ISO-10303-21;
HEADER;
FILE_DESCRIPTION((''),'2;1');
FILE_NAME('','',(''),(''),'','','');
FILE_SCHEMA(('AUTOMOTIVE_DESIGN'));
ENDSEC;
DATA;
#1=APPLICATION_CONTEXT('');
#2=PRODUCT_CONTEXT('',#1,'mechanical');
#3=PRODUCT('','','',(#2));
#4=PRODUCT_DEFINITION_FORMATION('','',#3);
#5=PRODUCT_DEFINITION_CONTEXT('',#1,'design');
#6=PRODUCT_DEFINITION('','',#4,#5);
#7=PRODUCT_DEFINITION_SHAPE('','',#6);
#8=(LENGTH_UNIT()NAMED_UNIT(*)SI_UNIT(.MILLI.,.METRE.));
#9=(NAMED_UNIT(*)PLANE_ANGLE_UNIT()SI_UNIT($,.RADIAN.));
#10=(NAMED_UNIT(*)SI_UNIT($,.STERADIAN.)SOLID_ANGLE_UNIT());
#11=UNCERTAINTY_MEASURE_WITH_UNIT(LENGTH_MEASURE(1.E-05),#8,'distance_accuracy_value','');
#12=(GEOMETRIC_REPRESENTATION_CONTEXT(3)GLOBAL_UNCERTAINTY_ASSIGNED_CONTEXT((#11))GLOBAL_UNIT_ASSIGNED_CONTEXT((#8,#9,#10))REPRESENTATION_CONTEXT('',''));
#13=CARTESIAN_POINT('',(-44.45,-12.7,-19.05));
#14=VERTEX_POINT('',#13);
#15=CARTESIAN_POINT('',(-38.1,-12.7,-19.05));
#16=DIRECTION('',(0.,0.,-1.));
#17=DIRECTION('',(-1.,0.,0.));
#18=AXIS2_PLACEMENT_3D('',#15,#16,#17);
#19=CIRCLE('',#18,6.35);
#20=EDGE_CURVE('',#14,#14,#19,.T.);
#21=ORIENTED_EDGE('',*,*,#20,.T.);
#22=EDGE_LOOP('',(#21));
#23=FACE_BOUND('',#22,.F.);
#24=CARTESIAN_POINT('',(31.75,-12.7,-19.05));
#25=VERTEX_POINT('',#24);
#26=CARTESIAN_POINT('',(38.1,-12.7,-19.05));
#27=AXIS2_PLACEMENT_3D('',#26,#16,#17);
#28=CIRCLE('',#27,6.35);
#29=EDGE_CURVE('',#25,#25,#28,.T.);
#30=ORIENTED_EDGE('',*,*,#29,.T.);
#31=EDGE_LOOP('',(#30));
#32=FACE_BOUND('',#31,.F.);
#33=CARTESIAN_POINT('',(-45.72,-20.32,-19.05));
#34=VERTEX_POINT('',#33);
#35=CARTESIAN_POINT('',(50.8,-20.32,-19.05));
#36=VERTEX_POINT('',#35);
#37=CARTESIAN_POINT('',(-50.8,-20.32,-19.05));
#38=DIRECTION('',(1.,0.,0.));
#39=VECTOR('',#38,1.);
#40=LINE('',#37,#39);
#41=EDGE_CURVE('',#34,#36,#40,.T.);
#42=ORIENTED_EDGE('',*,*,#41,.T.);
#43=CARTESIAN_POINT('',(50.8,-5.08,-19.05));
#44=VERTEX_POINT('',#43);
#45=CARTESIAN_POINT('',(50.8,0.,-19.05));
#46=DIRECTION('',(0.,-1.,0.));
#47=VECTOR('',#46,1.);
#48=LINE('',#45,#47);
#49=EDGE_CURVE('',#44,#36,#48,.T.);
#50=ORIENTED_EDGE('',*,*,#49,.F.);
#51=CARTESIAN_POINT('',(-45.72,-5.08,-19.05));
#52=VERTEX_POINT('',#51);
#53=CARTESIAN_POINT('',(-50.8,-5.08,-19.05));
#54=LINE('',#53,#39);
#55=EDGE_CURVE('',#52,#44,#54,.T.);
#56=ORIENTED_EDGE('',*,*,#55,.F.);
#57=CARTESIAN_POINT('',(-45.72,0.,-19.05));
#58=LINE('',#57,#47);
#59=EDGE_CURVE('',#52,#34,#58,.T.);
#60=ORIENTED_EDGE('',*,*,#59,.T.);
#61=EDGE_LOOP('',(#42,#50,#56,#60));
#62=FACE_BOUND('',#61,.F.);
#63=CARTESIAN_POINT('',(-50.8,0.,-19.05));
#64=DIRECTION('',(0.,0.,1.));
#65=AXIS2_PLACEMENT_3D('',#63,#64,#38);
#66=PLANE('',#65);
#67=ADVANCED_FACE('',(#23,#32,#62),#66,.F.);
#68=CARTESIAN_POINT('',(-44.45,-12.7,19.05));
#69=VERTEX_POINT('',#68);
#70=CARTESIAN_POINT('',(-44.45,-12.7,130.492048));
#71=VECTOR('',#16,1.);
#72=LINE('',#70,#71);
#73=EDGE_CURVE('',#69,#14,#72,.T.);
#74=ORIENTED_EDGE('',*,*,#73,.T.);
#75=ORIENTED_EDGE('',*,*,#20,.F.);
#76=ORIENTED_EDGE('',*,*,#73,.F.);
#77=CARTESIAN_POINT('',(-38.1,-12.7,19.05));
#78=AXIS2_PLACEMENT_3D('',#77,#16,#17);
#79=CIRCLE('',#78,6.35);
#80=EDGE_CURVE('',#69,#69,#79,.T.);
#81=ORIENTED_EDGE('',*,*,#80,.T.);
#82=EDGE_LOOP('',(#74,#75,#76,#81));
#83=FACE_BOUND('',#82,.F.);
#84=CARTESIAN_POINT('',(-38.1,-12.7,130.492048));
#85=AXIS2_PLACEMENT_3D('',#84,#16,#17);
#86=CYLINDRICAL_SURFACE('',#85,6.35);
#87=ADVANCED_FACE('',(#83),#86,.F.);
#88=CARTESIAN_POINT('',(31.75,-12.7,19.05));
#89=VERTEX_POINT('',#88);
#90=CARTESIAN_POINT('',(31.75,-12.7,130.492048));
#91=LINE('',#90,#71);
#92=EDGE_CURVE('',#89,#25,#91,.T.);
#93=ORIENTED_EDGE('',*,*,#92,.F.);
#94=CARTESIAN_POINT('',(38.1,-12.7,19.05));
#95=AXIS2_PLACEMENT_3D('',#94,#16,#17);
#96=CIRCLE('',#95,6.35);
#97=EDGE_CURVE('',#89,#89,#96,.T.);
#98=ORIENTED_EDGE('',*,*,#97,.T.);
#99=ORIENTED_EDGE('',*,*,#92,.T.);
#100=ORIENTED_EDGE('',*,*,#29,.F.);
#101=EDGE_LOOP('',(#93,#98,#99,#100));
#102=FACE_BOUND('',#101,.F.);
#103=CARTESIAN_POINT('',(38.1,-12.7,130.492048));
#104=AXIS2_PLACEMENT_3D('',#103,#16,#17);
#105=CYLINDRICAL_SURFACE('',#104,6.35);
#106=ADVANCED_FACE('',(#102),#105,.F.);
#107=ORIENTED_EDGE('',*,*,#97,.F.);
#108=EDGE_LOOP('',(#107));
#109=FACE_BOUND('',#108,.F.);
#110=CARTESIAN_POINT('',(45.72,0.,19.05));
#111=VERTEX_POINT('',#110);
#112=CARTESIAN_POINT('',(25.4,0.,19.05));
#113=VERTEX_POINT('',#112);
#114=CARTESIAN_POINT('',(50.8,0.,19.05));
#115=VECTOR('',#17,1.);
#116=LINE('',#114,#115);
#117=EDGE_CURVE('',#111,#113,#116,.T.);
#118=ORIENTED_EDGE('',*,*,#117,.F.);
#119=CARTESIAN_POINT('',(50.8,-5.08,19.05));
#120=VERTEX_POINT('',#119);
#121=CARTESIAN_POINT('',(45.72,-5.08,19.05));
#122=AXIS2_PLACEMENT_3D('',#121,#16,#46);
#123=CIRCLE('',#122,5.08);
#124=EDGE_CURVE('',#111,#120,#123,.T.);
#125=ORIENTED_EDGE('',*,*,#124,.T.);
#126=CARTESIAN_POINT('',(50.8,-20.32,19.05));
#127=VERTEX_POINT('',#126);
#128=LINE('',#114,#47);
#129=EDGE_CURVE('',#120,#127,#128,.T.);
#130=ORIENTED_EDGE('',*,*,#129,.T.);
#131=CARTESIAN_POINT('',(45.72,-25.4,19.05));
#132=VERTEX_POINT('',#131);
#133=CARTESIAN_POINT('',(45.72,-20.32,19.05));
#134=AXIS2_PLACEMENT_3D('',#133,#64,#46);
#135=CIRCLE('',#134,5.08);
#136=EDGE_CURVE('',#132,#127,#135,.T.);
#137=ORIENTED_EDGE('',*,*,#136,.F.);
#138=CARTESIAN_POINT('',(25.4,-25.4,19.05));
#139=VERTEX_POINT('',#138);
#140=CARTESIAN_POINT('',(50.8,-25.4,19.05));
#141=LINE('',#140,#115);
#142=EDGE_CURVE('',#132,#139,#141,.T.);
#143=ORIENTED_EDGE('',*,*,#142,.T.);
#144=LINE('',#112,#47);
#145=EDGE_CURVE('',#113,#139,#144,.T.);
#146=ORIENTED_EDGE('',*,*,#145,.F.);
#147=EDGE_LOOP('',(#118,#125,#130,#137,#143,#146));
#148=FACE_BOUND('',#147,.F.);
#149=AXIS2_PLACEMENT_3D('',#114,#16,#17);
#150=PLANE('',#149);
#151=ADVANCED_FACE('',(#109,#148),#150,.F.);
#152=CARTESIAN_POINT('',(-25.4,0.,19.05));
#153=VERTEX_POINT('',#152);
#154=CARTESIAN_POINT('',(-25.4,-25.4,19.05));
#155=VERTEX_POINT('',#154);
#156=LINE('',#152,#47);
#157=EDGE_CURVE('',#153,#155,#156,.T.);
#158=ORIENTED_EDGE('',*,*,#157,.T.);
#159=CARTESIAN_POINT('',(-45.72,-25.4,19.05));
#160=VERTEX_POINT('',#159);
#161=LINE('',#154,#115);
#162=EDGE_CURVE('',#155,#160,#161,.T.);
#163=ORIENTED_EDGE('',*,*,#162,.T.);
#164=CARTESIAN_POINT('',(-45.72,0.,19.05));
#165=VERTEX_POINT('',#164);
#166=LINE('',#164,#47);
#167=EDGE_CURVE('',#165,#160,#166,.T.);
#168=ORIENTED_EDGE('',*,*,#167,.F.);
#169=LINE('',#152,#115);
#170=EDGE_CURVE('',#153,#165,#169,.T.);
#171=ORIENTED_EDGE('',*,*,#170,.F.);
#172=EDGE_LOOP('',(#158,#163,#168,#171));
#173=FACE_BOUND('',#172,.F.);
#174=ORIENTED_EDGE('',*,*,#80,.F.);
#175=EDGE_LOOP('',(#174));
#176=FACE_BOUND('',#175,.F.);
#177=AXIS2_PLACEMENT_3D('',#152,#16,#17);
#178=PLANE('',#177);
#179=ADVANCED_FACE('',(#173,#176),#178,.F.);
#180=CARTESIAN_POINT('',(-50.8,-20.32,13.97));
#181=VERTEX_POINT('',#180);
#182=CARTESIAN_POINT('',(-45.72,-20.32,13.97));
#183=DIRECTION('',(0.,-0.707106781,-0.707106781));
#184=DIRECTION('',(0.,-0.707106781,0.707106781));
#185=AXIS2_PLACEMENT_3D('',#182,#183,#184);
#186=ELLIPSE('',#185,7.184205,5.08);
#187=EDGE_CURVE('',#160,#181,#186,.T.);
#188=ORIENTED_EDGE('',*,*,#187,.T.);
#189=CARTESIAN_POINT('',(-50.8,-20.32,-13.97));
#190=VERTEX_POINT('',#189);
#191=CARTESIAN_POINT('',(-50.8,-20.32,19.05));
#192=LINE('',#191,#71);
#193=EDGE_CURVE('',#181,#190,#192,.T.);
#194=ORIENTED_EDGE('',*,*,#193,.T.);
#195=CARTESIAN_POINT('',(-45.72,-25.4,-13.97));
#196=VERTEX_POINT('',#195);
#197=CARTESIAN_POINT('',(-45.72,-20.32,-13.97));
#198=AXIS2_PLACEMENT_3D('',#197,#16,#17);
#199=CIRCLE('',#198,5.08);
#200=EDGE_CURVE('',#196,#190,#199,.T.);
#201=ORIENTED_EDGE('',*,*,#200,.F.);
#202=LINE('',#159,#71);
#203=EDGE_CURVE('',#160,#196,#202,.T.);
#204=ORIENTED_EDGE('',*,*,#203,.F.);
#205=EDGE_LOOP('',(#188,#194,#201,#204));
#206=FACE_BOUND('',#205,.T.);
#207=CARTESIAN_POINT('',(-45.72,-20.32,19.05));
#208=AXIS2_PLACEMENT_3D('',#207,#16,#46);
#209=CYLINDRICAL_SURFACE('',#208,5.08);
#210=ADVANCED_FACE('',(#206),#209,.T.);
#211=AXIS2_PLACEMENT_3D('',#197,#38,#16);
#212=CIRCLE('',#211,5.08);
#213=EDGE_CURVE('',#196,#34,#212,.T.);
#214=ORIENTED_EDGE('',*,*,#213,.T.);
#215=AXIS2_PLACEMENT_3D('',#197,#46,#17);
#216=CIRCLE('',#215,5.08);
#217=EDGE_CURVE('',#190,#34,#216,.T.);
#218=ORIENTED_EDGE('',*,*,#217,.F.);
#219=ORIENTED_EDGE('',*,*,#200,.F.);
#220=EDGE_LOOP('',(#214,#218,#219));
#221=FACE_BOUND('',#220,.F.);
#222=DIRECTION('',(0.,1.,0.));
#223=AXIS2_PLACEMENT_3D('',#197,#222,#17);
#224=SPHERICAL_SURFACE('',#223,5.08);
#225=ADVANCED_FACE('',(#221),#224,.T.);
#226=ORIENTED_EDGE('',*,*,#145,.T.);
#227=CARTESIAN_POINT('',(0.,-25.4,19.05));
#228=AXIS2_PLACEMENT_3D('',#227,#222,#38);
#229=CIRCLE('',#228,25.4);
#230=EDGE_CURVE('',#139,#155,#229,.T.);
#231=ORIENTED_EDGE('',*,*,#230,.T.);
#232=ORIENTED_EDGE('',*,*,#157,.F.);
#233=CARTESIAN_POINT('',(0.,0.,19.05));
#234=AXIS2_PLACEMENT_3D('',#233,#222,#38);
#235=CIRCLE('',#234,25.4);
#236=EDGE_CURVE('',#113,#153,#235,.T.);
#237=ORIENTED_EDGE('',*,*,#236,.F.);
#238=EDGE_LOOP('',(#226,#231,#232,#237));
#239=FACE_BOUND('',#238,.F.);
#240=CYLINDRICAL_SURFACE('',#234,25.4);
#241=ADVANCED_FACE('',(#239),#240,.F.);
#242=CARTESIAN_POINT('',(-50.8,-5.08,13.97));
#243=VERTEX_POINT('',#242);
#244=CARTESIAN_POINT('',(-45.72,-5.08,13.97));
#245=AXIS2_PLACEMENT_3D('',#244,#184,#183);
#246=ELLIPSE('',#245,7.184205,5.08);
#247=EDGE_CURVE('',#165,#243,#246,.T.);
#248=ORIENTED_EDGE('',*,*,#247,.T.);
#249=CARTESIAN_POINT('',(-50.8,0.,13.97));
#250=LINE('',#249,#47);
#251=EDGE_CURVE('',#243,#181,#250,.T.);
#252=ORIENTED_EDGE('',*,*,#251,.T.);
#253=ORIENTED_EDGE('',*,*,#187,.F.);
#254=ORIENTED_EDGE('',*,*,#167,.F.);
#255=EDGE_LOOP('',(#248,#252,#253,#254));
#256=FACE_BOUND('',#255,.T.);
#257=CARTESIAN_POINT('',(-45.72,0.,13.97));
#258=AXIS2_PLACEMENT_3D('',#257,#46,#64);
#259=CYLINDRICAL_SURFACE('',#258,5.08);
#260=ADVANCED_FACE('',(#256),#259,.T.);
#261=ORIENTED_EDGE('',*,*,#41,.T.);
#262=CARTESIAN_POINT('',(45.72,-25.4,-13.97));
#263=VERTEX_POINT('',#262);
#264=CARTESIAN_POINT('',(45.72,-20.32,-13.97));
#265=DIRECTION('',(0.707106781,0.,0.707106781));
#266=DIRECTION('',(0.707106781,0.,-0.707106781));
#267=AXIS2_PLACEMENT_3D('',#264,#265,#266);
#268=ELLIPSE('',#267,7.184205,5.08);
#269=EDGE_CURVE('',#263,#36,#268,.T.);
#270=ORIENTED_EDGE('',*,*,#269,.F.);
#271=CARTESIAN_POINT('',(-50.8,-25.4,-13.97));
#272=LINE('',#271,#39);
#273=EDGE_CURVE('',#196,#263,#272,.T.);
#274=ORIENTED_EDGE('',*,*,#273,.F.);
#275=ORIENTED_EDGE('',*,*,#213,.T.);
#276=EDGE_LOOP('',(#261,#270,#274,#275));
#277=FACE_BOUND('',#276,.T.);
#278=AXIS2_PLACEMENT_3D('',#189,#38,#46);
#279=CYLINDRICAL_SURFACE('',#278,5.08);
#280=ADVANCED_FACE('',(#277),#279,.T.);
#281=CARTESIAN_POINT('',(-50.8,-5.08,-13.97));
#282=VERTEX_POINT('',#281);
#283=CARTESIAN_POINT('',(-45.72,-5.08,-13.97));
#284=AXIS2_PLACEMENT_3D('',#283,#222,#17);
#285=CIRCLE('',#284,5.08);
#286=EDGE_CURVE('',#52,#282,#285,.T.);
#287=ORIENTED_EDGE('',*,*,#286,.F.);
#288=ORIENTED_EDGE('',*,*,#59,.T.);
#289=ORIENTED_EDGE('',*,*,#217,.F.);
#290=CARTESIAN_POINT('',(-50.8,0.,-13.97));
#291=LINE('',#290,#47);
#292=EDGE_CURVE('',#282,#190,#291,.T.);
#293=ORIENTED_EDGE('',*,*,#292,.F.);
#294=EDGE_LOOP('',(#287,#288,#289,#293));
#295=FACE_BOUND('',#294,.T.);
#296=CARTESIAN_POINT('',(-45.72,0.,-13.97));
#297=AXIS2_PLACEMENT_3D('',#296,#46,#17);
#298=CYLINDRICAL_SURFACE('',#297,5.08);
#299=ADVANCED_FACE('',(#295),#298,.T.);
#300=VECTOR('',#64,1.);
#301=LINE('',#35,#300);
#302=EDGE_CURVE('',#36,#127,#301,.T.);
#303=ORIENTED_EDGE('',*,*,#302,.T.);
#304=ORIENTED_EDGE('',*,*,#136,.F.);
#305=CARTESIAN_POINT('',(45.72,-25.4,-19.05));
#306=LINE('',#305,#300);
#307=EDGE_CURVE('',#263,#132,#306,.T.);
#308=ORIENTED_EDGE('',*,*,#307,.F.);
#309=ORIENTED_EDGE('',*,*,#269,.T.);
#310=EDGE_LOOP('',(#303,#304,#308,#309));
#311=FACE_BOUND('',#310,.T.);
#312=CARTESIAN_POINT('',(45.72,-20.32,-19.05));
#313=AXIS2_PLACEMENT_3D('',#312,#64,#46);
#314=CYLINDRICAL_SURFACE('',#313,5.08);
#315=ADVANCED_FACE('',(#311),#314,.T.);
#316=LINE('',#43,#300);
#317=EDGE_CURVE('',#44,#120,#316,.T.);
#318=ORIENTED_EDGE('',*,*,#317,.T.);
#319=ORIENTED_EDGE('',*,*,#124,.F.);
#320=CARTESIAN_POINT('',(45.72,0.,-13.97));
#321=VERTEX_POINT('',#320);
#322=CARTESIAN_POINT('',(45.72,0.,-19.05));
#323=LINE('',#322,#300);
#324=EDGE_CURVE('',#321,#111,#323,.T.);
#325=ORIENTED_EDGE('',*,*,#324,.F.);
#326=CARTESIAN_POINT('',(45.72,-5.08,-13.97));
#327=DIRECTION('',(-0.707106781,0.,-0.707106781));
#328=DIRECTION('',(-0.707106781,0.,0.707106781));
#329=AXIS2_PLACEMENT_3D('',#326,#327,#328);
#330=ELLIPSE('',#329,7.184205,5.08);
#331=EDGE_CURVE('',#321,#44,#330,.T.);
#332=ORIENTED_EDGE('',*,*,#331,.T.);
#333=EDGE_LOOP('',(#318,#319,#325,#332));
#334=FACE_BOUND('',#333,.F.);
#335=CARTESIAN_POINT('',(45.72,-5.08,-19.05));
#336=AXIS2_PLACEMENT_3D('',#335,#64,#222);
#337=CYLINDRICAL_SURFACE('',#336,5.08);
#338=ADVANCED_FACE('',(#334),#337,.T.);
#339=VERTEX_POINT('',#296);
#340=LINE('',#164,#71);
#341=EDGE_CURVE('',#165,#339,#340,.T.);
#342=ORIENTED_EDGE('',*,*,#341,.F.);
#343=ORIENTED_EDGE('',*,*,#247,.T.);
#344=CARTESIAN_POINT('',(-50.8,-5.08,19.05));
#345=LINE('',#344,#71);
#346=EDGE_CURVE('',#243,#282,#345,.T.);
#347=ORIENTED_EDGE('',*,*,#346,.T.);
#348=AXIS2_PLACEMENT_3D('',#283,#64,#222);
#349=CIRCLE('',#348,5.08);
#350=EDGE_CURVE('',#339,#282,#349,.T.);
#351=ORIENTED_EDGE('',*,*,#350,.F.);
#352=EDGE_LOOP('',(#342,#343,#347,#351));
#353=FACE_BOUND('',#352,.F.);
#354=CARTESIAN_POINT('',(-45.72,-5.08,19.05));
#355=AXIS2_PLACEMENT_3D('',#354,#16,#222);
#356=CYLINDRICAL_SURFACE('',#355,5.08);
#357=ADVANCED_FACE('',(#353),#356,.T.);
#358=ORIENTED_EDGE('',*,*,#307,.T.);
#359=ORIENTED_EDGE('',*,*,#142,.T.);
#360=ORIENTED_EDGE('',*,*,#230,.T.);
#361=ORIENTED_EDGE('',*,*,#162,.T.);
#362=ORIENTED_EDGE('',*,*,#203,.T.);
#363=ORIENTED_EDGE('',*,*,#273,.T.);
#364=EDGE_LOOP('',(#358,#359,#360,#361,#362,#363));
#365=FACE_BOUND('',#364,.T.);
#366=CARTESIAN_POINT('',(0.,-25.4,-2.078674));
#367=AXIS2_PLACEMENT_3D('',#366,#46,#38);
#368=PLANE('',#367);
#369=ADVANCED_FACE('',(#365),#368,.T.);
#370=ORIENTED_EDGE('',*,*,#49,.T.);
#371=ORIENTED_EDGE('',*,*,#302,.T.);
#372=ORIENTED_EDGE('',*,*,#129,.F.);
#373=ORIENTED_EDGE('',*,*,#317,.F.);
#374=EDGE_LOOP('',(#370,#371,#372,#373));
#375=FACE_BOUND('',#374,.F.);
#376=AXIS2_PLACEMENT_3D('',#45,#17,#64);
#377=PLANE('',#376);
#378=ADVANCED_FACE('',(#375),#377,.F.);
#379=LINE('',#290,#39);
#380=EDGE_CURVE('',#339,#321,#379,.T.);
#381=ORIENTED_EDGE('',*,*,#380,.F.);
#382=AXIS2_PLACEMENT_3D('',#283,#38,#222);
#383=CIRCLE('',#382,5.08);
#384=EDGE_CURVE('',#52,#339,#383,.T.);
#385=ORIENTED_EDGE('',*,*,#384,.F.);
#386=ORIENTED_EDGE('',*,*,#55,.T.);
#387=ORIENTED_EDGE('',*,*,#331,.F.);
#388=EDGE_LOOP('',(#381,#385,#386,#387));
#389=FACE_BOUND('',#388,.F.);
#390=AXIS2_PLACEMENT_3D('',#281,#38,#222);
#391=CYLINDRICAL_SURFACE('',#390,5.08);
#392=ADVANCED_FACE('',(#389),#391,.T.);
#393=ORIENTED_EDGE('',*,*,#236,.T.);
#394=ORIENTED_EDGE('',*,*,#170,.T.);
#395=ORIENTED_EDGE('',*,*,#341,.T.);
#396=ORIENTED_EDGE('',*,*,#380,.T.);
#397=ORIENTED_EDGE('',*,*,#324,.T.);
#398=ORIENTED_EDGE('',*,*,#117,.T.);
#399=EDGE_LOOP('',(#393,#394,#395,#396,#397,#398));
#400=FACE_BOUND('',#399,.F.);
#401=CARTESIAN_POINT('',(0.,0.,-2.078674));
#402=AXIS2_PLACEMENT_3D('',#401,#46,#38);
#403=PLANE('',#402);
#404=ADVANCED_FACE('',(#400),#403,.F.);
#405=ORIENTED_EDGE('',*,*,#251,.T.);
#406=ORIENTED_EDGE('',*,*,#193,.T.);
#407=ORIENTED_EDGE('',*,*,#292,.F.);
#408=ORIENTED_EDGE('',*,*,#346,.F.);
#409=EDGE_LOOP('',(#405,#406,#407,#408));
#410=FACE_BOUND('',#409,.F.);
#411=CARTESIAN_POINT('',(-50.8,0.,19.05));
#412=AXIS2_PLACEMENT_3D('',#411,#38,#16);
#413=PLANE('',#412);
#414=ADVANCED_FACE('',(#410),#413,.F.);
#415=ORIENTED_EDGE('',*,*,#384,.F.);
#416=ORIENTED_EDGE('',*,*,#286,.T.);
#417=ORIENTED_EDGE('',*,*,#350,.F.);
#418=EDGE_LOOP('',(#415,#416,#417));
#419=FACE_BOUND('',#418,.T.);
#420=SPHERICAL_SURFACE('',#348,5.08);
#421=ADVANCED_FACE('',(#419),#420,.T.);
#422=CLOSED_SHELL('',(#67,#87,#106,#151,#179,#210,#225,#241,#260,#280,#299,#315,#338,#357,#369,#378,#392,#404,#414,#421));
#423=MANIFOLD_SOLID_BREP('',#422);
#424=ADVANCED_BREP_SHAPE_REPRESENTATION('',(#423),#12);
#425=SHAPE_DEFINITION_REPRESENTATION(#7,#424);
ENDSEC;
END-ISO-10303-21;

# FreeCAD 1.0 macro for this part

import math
import FreeCAD as App
import Part
import Sketcher
Q = App.Units.Quantity


def edges_at(feature, points):
    """Names of the edges that pass closest to the given points."""
    edges = feature.Shape.Edges
    near = lambda p: min(range(len(edges)), key=lambda i: edges[i].distToShape(Part.Vertex(*p))[0])
    return sorted({f"Edge{near(p) + 1}" for p in points})

doc = App.newDocument("Part")
body = doc.addObject("PartDesign::Body", "Body")

# Sketch on XZ plane
sketch1 = doc.addObject("Sketcher::SketchObject", "Sketch")
body.addObject(sketch1)
sketch1.AttachmentSupport = (doc.XZ_Plane, [""])
sketch1.MapMode = "FlatFace"
sketch1.addGeometry(Part.LineSegment(App.Vector(-25, 19, 0), App.Vector(-51, 19, 0)), False)
sketch1.addGeometry(Part.LineSegment(App.Vector(-51, 19, 0), App.Vector(-51, -19, 0)), False)
sketch1.addGeometry(Part.LineSegment(App.Vector(-51, -19, 0), App.Vector(51, -19, 0)), False)
sketch1.addGeometry(Part.LineSegment(App.Vector(51, -19, 0), App.Vector(51, 19, 0)), False)
sketch1.addGeometry(Part.LineSegment(App.Vector(51, 19, 0), App.Vector(25, 19, 0)), False)
sketch1.addGeometry(Part.ArcOfCircle(Part.Circle(App.Vector(0, 19, 0), App.Vector(0, 0, 1), 25), math.radians(180), math.radians(360)), False)
sketch1.addConstraint(Sketcher.Constraint("Coincident", 0, 2, 1, 1))
sketch1.addConstraint(Sketcher.Constraint("Coincident", 1, 2, 2, 1))
sketch1.addConstraint(Sketcher.Constraint("Coincident", 2, 2, 3, 1))
sketch1.addConstraint(Sketcher.Constraint("Coincident", 3, 2, 4, 1))
sketch1.addConstraint(Sketcher.Constraint("Coincident", 4, 2, 5, 2))
sketch1.addConstraint(Sketcher.Constraint("Coincident", 5, 1, 0, 1))
sketch1.addConstraint(Sketcher.Constraint("Horizontal", 0))
sketch1.addConstraint(Sketcher.Constraint("Vertical", 1))
sketch1.addConstraint(Sketcher.Constraint("Horizontal", 2))
sketch1.addConstraint(Sketcher.Constraint("Vertical", 3))
sketch1.addConstraint(Sketcher.Constraint("Horizontal", 4))
sketch1.addConstraint(Sketcher.Constraint("Symmetric", 0, 2, 2, 2, -1, 1))
sketch1.addConstraint(Sketcher.Constraint("Symmetric", 4, 2, 5, 1, -2))
sketch1.addConstraint(Sketcher.Constraint("Horizontal", 5, 3, 0, 2))
sketch1.addConstraint(Sketcher.Constraint("Radius", 5, Q("1 in")))
sketch1.addConstraint(Sketcher.Constraint("DistanceX", 0, 2, 0, 1, Q("1 in")))
sketch1.addConstraint(Sketcher.Constraint("DistanceY", 1, 2, 1, 1, Q("1.5 in")))
pad1 = doc.addObject("PartDesign::Pad", "Pad")
body.addObject(pad1)
pad1.Profile = sketch1
pad1.Length = Q("1 in")

# Sketch on XY plane
sketch2 = doc.addObject("Sketcher::SketchObject", "Sketch001")
body.addObject(sketch2)
sketch2.AttachmentSupport = (doc.XY_Plane, [""])
sketch2.MapMode = "FlatFace"
sketch2.AttachmentOffset = App.Placement(App.Vector(0, 0, 0.75 * 25.4), App.Rotation())
sketch2.addGeometry(Part.Circle(App.Vector(-38, -13, 0), App.Vector(0, 0, 1), 6), False)
sketch2.addConstraint(Sketcher.Constraint("Diameter", 0, Q("0.5 in")))
sketch2.addConstraint(Sketcher.Constraint("DistanceX", 0, 3, -1, 1, Q("1.5 in")))
sketch2.addConstraint(Sketcher.Constraint("DistanceY", 0, 3, -1, 1, Q("0.5 in")))
doc.recompute()
hole = doc.addObject("PartDesign::Hole", "Hole")
body.addObject(hole)
hole.Profile = sketch2
hole.ThreadType = "None"
hole.Diameter = Q("0.5 in")
hole.DepthType = "ThroughAll"

# Sketch on XY plane
sketch3 = doc.addObject("Sketcher::SketchObject", "Sketch002")
body.addObject(sketch3)
sketch3.AttachmentSupport = (doc.XY_Plane, [""])
sketch3.MapMode = "FlatFace"
sketch3.AttachmentOffset = App.Placement(App.Vector(0, 0, 0.75 * 25.4), App.Rotation())
sketch3.addGeometry(Part.Circle(App.Vector(38, -13, 0), App.Vector(0, 0, 1), 6), False)
sketch3.addConstraint(Sketcher.Constraint("Diameter", 0, Q("0.5 in")))
sketch3.addConstraint(Sketcher.Constraint("DistanceX", -1, 1, 0, 3, Q("1.5 in")))
sketch3.addConstraint(Sketcher.Constraint("DistanceY", 0, 3, -1, 1, Q("0.5 in")))
doc.recompute()
hole2 = doc.addObject("PartDesign::Hole", "Hole001")
body.addObject(hole2)
hole2.Profile = sketch3
hole2.ThreadType = "None"
hole2.Diameter = Q("0.5 in")
hole2.DepthType = "ThroughAll"
doc.recompute()

fillet = doc.addObject("PartDesign::Fillet", "Fillet")
body.addObject(fillet)
fillet.Base = (hole2, edges_at(hole2, [
    (50.8, 0, 0),
    (-50.8, 0, 0),
    (0, 0, -19.05),
    (-50.8, -12.7, -19.05),
    (-50.8, -12.7, 19.05),
    (-50.8, -25.4, 0),
    (0, -25.4, -19.05),
    (50.8, -25.4, 0),
]))
fillet.Radius = Q("0.2 in")

doc.recompute()
